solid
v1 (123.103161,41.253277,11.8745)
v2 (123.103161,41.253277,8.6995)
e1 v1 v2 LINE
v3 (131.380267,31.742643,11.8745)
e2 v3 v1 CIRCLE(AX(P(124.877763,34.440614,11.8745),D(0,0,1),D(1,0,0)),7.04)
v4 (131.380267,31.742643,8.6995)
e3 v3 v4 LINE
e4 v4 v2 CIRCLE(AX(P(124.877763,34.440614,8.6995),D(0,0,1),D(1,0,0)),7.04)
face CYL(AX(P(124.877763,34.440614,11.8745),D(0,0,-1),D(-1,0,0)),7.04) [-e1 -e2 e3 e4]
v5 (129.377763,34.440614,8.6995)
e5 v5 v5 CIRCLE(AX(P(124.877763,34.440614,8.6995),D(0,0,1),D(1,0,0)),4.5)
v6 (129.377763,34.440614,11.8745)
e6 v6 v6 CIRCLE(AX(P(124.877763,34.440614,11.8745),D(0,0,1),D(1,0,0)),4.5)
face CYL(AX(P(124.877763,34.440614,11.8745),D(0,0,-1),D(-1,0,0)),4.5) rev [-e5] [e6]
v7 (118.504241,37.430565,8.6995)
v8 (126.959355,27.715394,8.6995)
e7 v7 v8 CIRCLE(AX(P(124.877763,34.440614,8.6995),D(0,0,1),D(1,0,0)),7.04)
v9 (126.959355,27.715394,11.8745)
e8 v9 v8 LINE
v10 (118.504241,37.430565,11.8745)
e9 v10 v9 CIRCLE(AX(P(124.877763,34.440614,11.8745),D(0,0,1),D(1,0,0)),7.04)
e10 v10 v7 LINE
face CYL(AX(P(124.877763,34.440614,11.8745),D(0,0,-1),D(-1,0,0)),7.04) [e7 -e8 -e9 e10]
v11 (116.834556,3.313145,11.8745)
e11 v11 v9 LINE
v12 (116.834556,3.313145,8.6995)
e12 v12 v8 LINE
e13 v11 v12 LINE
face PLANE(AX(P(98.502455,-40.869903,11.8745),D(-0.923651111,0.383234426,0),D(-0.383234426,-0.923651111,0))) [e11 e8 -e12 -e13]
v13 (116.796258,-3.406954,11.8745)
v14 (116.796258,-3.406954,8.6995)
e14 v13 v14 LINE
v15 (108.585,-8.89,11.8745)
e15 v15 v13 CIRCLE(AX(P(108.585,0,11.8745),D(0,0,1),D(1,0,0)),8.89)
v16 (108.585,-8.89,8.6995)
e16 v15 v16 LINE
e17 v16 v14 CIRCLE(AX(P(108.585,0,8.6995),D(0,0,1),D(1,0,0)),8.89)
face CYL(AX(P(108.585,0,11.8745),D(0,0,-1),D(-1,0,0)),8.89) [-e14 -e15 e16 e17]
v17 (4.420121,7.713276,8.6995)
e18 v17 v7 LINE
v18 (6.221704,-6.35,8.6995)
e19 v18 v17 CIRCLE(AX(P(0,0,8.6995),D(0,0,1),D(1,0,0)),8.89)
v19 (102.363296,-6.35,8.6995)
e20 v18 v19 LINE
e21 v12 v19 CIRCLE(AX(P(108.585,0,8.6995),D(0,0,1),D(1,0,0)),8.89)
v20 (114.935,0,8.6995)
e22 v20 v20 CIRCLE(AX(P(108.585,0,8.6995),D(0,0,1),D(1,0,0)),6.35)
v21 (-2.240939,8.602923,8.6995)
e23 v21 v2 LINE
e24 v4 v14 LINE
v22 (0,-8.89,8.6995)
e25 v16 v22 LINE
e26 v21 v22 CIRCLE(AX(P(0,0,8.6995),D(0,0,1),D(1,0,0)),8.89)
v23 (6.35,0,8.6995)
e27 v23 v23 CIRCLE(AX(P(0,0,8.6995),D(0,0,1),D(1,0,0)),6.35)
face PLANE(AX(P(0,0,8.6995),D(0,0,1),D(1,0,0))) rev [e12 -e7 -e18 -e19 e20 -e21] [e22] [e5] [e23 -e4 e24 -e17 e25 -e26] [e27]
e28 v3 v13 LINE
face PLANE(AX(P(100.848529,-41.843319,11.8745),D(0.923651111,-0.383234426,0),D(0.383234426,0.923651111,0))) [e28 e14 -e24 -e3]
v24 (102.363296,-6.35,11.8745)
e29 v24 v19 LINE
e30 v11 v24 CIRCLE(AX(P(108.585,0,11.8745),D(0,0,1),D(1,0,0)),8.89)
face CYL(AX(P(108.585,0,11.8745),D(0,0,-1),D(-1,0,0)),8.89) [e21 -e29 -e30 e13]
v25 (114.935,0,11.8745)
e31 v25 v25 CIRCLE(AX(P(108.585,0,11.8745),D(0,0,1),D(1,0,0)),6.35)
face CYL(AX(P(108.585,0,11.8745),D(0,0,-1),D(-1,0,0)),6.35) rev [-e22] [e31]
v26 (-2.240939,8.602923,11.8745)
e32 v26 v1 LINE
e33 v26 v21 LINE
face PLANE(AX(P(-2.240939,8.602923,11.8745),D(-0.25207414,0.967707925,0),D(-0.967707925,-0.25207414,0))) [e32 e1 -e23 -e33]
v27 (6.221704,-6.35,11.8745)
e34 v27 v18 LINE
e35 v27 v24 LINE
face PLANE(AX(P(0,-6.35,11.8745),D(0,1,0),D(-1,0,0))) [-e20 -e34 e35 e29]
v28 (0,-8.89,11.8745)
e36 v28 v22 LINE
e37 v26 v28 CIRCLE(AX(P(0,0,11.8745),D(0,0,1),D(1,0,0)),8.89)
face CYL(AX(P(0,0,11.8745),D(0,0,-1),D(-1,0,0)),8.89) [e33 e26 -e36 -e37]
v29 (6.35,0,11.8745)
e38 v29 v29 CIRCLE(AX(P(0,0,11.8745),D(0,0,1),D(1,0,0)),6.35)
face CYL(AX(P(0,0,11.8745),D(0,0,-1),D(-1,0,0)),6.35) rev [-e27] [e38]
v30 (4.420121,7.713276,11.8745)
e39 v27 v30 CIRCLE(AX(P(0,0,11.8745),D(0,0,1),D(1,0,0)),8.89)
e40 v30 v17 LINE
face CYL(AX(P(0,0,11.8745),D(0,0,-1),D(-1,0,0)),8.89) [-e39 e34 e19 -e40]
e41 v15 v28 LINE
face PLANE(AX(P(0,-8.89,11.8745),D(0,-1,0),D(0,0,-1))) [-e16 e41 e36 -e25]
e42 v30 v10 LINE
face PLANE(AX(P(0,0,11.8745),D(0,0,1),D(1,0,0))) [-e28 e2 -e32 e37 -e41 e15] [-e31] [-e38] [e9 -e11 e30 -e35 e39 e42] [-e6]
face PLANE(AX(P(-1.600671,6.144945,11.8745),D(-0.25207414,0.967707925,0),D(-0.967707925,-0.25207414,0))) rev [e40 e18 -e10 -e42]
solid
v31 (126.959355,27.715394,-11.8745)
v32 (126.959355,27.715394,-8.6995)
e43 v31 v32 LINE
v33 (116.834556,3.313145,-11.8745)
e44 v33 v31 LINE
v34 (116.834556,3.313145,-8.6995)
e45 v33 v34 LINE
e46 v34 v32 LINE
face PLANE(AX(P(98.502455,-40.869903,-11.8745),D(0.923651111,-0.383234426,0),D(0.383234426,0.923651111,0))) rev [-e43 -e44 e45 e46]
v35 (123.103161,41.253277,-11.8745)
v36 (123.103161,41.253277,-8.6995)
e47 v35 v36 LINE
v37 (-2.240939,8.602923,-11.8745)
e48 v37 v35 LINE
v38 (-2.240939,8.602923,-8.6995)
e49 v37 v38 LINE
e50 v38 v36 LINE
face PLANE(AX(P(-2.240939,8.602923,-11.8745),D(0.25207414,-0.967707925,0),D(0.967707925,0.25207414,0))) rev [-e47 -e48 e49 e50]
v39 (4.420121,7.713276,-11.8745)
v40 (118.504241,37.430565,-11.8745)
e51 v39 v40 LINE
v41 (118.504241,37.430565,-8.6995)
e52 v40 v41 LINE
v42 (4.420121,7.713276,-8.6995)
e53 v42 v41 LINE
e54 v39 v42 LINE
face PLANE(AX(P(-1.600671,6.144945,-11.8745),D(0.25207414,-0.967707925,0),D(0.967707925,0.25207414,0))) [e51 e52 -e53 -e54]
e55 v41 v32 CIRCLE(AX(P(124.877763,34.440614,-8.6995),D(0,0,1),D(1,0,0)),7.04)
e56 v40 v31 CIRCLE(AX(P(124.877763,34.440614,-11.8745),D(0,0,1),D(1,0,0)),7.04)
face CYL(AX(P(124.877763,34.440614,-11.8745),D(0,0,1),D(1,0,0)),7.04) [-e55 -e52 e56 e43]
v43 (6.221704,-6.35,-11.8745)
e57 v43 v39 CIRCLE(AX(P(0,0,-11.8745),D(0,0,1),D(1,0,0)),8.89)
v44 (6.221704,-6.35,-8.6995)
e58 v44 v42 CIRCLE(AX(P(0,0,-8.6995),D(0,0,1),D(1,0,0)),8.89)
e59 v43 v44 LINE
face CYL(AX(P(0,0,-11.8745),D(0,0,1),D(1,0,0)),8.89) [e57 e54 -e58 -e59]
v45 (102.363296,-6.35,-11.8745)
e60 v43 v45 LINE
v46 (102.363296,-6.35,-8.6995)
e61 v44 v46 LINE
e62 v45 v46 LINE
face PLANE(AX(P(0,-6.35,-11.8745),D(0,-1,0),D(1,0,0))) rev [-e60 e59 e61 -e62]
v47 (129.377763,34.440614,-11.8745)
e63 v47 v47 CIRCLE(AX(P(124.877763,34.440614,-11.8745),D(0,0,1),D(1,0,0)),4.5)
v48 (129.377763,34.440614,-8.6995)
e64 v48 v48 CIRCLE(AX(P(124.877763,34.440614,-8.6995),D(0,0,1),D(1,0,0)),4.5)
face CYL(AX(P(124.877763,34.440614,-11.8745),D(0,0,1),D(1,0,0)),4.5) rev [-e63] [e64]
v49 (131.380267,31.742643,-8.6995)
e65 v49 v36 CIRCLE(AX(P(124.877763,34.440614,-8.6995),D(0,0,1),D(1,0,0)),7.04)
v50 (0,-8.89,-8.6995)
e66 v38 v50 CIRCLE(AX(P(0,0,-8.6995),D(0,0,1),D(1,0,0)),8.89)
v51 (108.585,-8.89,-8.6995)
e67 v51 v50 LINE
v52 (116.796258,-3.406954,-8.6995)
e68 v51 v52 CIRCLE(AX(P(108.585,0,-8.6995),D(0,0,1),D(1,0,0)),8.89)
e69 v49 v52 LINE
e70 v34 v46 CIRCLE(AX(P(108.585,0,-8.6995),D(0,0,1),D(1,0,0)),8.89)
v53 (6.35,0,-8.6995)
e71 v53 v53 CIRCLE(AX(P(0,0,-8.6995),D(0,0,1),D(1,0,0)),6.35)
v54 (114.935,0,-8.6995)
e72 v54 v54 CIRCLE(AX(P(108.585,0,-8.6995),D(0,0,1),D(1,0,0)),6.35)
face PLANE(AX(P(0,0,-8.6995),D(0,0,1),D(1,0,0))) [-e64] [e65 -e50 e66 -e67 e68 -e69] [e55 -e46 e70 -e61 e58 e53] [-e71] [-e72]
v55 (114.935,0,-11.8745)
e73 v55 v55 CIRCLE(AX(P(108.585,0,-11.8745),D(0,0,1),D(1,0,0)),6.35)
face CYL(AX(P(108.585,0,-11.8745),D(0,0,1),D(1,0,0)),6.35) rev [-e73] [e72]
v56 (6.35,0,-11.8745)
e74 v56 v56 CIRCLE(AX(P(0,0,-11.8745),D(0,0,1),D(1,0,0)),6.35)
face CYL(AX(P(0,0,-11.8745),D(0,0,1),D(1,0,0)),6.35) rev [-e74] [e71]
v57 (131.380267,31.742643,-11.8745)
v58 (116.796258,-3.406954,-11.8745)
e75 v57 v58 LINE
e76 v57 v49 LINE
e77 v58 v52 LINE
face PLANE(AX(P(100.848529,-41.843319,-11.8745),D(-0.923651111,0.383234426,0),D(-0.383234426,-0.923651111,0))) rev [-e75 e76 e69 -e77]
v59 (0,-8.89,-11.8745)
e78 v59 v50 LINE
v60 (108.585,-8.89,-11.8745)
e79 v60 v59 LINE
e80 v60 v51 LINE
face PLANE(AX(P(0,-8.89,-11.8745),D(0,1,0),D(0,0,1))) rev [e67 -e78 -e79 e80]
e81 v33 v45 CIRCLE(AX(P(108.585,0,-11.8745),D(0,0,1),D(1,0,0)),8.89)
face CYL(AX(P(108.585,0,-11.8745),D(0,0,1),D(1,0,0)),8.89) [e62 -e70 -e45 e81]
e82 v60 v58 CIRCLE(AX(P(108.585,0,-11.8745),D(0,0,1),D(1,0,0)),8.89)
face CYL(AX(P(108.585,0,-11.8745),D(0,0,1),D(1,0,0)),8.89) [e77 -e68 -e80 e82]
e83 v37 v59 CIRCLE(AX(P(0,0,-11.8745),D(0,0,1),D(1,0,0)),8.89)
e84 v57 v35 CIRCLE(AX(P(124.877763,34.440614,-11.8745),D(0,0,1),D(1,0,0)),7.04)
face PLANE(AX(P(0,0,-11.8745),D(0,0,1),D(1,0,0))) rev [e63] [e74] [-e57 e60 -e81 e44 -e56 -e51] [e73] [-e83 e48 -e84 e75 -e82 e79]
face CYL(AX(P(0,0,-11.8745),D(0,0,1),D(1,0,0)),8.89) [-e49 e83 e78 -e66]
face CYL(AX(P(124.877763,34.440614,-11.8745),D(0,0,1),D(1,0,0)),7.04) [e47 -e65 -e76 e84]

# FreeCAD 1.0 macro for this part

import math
import FreeCAD as App
import Part
import Sketcher
Q = App.Units.Quantity

doc = App.newDocument("Part")
body = doc.addObject("PartDesign::Body", "Body")

# Sketch on XY plane
sketch1 = doc.addObject("Sketcher::SketchObject", "Sketch")
body.addObject(sketch1)
sketch1.AttachmentSupport = (doc.XY_Plane, [""])
sketch1.MapMode = "FlatFace"
sketch1.AttachmentOffset = App.Placement(App.Vector(0, 0, 0.3425 * 25.4), App.Rotation())
sketch1.addGeometry(Part.ArcOfCircle(Part.Circle(App.Vector(124.877763, 34.440614, 0), App.Vector(0, 0, 1), 7.04), math.radians(0), math.radians(104.600283)), False)
sketch1.addGeometry(Part.LineSegment(App.Vector(123.103161, 41.253277, 0), App.Vector(-2.240939, 8.602923, 0)), False)
sketch1.addGeometry(Part.ArcOfCircle(Part.Circle(App.Vector(0, 0, 0), App.Vector(0, 0, 1), 8.89), math.radians(104.600283), math.radians(270)), False)
sketch1.addGeometry(Part.LineSegment(App.Vector(0, -8.89, 0), App.Vector(108.585, -8.89, 0)), False)
sketch1.addGeometry(Part.ArcOfCircle(Part.Circle(App.Vector(108.585, 0, 0), App.Vector(0, 0, 1), 8.89), math.radians(-90), math.radians(-22.534175)), False)
sketch1.addGeometry(Part.LineSegment(App.Vector(116.796258, -3.406954, 0), App.Vector(131.380267, 31.742643, 0)), False)
sketch1.addGeometry(Part.ArcOfCircle(Part.Circle(App.Vector(124.877763, 34.440614, 0), App.Vector(0, 0, 1), 7.04), math.radians(-22.534175), math.radians(0)), False)
sketch1.addGeometry(Part.ArcOfCircle(Part.Circle(App.Vector(0, 0, 0), App.Vector(0, 0, 1), 6.35), math.radians(104.600283), math.radians(270)), False)
sketch1.addGeometry(Part.ArcOfCircle(Part.Circle(App.Vector(0, 0, 0), App.Vector(0, 0, 1), 6.35), math.radians(0), math.radians(104.600283)), False)
sketch1.addGeometry(Part.ArcOfCircle(Part.Circle(App.Vector(0, 0, 0), App.Vector(0, 0, 1), 6.35), math.radians(-90), math.radians(0)), False)
sketch1.addGeometry(Part.ArcOfCircle(Part.Circle(App.Vector(108.585, 0, 0), App.Vector(0, 0, 1), 6.35), math.radians(-22.534175), math.radians(0)), False)
sketch1.addGeometry(Part.ArcOfCircle(Part.Circle(App.Vector(108.585, 0, 0), App.Vector(0, 0, 1), 6.35), math.radians(-90), math.radians(-22.534175)), False)
sketch1.addGeometry(Part.ArcOfCircle(Part.Circle(App.Vector(108.585, 0, 0), App.Vector(0, 0, 1), 6.35), math.radians(0), math.radians(270)), False)
sketch1.addGeometry(Part.ArcOfCircle(Part.Circle(App.Vector(124.877763, 34.440614, 0), App.Vector(0, 0, 1), 4.5), math.radians(0), math.radians(104.600283)), False)
sketch1.addGeometry(Part.ArcOfCircle(Part.Circle(App.Vector(124.877763, 34.440614, 0), App.Vector(0, 0, 1), 4.5), math.radians(-22.534175), math.radians(0)), False)
sketch1.addGeometry(Part.ArcOfCircle(Part.Circle(App.Vector(124.877763, 34.440614, 0), App.Vector(0, 0, 1), 4.5), math.radians(104.600283), math.radians(337.465825)), False)
sketch1.addGeometry(Part.LineSegment(App.Vector(4.420121, 7.713276, 0), App.Vector(118.504241, 37.430565, 0)), False)
sketch1.addGeometry(Part.ArcOfCircle(Part.Circle(App.Vector(124.877763, 34.440614, 0), App.Vector(0, 0, 1), 7.04), math.radians(154.867753), math.radians(287.198355)), False)
sketch1.addGeometry(Part.LineSegment(App.Vector(126.959355, 27.715394, 0), App.Vector(116.834556, 3.313145, 0)), False)
sketch1.addGeometry(Part.ArcOfCircle(Part.Circle(App.Vector(108.585, 0, 0), App.Vector(0, 0, 1), 8.89), math.radians(21.881134), math.radians(225.584691)), False)
sketch1.addGeometry(Part.LineSegment(App.Vector(102.363296, -6.35, 0), App.Vector(6.221704, -6.35, 0)), False)
sketch1.addGeometry(Part.ArcOfCircle(Part.Circle(App.Vector(0, 0, 0), App.Vector(0, 0, 1), 8.89), math.radians(-45.584691), math.radians(0)), False)
sketch1.addGeometry(Part.ArcOfCircle(Part.Circle(App.Vector(0, 0, 0), App.Vector(0, 0, 1), 8.89), math.radians(0), math.radians(60.184975)), False)
sketch1.addConstraint(Sketcher.Constraint("Tangent", 0, 2, 1, 1))
sketch1.addConstraint(Sketcher.Constraint("Tangent", 1, 2, 2, 1))
sketch1.addConstraint(Sketcher.Constraint("Tangent", 2, 2, 3, 1))
sketch1.addConstraint(Sketcher.Constraint("Tangent", 3, 2, 4, 1))
sketch1.addConstraint(Sketcher.Constraint("Tangent", 4, 2, 5, 1))
sketch1.addConstraint(Sketcher.Constraint("Tangent", 5, 2, 6, 1))
sketch1.addConstraint(Sketcher.Constraint("Tangent", 6, 2, 0, 1))
sketch1.addConstraint(Sketcher.Constraint("Tangent", 7, 1, 8, 2))
sketch1.addConstraint(Sketcher.Constraint("Tangent", 8, 1, 9, 2))
sketch1.addConstraint(Sketcher.Constraint("Tangent", 9, 1, 7, 2))
sketch1.addConstraint(Sketcher.Constraint("Tangent", 10, 1, 11, 2))
sketch1.addConstraint(Sketcher.Constraint("Tangent", 11, 1, 12, 2))
sketch1.addConstraint(Sketcher.Constraint("Tangent", 12, 1, 10, 2))
sketch1.addConstraint(Sketcher.Constraint("Tangent", 13, 1, 14, 2))
sketch1.addConstraint(Sketcher.Constraint("Tangent", 14, 1, 15, 2))
sketch1.addConstraint(Sketcher.Constraint("Tangent", 15, 1, 13, 2))
sketch1.addConstraint(Sketcher.Constraint("Coincident", 16, 2, 17, 1))
sketch1.addConstraint(Sketcher.Constraint("Coincident", 17, 2, 18, 1))
sketch1.addConstraint(Sketcher.Constraint("Coincident", 18, 2, 19, 1))
sketch1.addConstraint(Sketcher.Constraint("Coincident", 19, 2, 20, 1))
sketch1.addConstraint(Sketcher.Constraint("Coincident", 20, 2, 21, 1))
sketch1.addConstraint(Sketcher.Constraint("Tangent", 21, 2, 22, 1))
sketch1.addConstraint(Sketcher.Constraint("Coincident", 22, 2, 16, 1))
sketch1.addConstraint(Sketcher.Constraint("Horizontal", 3))
sketch1.addConstraint(Sketcher.Constraint("Horizontal", 20))
sketch1.addConstraint(Sketcher.Constraint("Coincident", 2, 3, -1, 1))
sketch1.addConstraint(Sketcher.Constraint("Coincident", 7, 3, -1, 1))
sketch1.addConstraint(Sketcher.Constraint("Coincident", 21, 3, -1, 1))
sketch1.addConstraint(Sketcher.Constraint("Coincident", 10, 3, 4, 3))
sketch1.addConstraint(Sketcher.Constraint("Coincident", 13, 3, 0, 3))
sketch1.addConstraint(Sketcher.Constraint("Coincident", 17, 3, 0, 3))
sketch1.addConstraint(Sketcher.Constraint("Coincident", 19, 3, 4, 3))
sketch1.addConstraint(Sketcher.Constraint("Equal", 2, 4))
sketch1.addConstraint(Sketcher.Constraint("Equal", 0, 6))
sketch1.addConstraint(Sketcher.Constraint("Equal", 9, 10))
sketch1.addConstraint(Sketcher.Constraint("Equal", 6, 17))
sketch1.addConstraint(Sketcher.Constraint("Equal", 4, 19))
sketch1.addConstraint(Sketcher.Constraint("Equal", 19, 21))
sketch1.addConstraint(Sketcher.Constraint("Equal", 21, 22))
sketch1.addConstraint(Sketcher.Constraint("PointOnObject", 8, 1, -1))
sketch1.addConstraint(Sketcher.Constraint("PointOnObject", 9, 1, -2))
sketch1.addConstraint(Sketcher.Constraint("PointOnObject", 12, 1, -1))
sketch1.addConstraint(Sketcher.Constraint("PointOnObject", 21, 2, -1))
sketch1.addConstraint(Sketcher.Constraint("Parallel", 1, 16))
sketch1.addConstraint(Sketcher.Constraint("Parallel", 5, 18))
sketch1.addConstraint(Sketcher.Constraint("Horizontal", 17, 3, 6, 2))
sketch1.addConstraint(Sketcher.Constraint("Horizontal", 6, 2, 13, 1))
sketch1.addConstraint(Sketcher.Constraint("Horizontal", 11, 1, 19, 2))
sketch1.addConstraint(Sketcher.Constraint("Vertical", 3, 2, 11, 1))
sketch1.addConstraint(Sketcher.Constraint("Radius", 2, Q("0.35 in")))
sketch1.addConstraint(Sketcher.Constraint("Radius", 7, Q("0.25 in")))
sketch1.addConstraint(Sketcher.Constraint("DistanceX", 13, 1, 6, 2, Q("0.1 in")))
sketch1.addConstraint(Sketcher.Constraint("DistanceX", 3, 1, 3, 2, Q("4.275 in")))
sketch1.addConstraint(Sketcher.Constraint("Radius", 0, Q("7.04 mm")))
sketch1.addConstraint(Sketcher.Constraint("DistanceY", -1, 1, 15, 1, Q("38.795299 mm")))
sketch1.addConstraint(Sketcher.Constraint("DistanceX", 0, 2, 14, 3, Q("1.774602 mm")))
sketch1.addConstraint(Sketcher.Constraint("DistanceY", 4, 2, 18, 2, Q("6.720099 mm")))
sketch1.addConstraint(Sketcher.Constraint("Distance", 1, Q("129.526789 mm")))
sketch1.addConstraint(Sketcher.Constraint("DistanceX", 7, 1, -1, 1, Q("1.600671 mm")))
sketch1.addConstraint(Sketcher.Constraint("DistanceY", 10, 1, -1, 1, Q("2.433539 mm")))
sketch1.addConstraint(Sketcher.Constraint("DistanceY", -1, 1, 14, 1, Q("32.716059 mm")))
sketch1.addConstraint(Sketcher.Constraint("DistanceX", -1, 1, 16, 2, Q("118.504241 mm")))
pad1 = doc.addObject("PartDesign::Pad", "Pad")
body.addObject(pad1)
pad1.Profile = sketch1
pad1.Length = Q("0.125 in")
body2 = doc.addObject("PartDesign::Body", "Body001")

# Sketch on XY plane
sketch2 = doc.addObject("Sketcher::SketchObject", "Sketch001")
body2.addObject(sketch2)
sketch2.AttachmentSupport = (doc.getObject("XY_Plane001"), [""])
sketch2.MapMode = "FlatFace"
sketch2.AttachmentOffset = App.Placement(App.Vector(0, 0, -0.3425 * 25.4), App.Rotation())
sketch2.addGeometry(Part.LineSegment(App.Vector(116.796258, -3.406954, 0), App.Vector(131.380267, 31.742643, 0)), False)
sketch2.addGeometry(Part.ArcOfCircle(Part.Circle(App.Vector(124.877763, 34.440614, 0), App.Vector(0, 0, 1), 7.04), math.radians(-22.534175), math.radians(0)), False)
sketch2.addGeometry(Part.ArcOfCircle(Part.Circle(App.Vector(124.877763, 34.440614, 0), App.Vector(0, 0, 1), 7.04), math.radians(0), math.radians(104.600283)), False)
sketch2.addGeometry(Part.LineSegment(App.Vector(123.103161, 41.253277, 0), App.Vector(-2.240939, 8.602923, 0)), False)
sketch2.addGeometry(Part.ArcOfCircle(Part.Circle(App.Vector(0, 0, 0), App.Vector(0, 0, 1), 8.89), math.radians(104.600283), math.radians(270)), False)
sketch2.addGeometry(Part.LineSegment(App.Vector(0, -8.89, 0), App.Vector(108.585, -8.89, 0)), False)
sketch2.addGeometry(Part.ArcOfCircle(Part.Circle(App.Vector(108.585, 0, 0), App.Vector(0, 0, 1), 8.89), math.radians(-90), math.radians(-22.534175)), False)
sketch2.addGeometry(Part.ArcOfCircle(Part.Circle(App.Vector(0, 0, 0), App.Vector(0, 0, 1), 6.35), math.radians(104.600283), math.radians(270)), False)
sketch2.addGeometry(Part.ArcOfCircle(Part.Circle(App.Vector(0, 0, 0), App.Vector(0, 0, 1), 6.35), math.radians(0), math.radians(104.600283)), False)
sketch2.addGeometry(Part.ArcOfCircle(Part.Circle(App.Vector(0, 0, 0), App.Vector(0, 0, 1), 6.35), math.radians(-90), math.radians(0)), False)
sketch2.addGeometry(Part.ArcOfCircle(Part.Circle(App.Vector(108.585, 0, 0), App.Vector(0, 0, 1), 6.35), math.radians(-90), math.radians(-22.534175)), False)
sketch2.addGeometry(Part.ArcOfCircle(Part.Circle(App.Vector(108.585, 0, 0), App.Vector(0, 0, 1), 6.35), math.radians(0), math.radians(270)), False)
sketch2.addGeometry(Part.ArcOfCircle(Part.Circle(App.Vector(108.585, 0, 0), App.Vector(0, 0, 1), 6.35), math.radians(-22.534175), math.radians(0)), False)
sketch2.addGeometry(Part.ArcOfCircle(Part.Circle(App.Vector(108.585, 0, 0), App.Vector(0, 0, 1), 8.89), math.radians(21.881134), math.radians(225.584691)), False)
sketch2.addGeometry(Part.LineSegment(App.Vector(102.363296, -6.35, 0), App.Vector(6.221704, -6.35, 0)), False)
sketch2.addGeometry(Part.ArcOfCircle(Part.Circle(App.Vector(0, 0, 0), App.Vector(0, 0, 1), 8.89), math.radians(-45.584691), math.radians(0)), False)
sketch2.addGeometry(Part.ArcOfCircle(Part.Circle(App.Vector(0, 0, 0), App.Vector(0, 0, 1), 8.89), math.radians(0), math.radians(60.184975)), False)
sketch2.addGeometry(Part.LineSegment(App.Vector(4.420121, 7.713276, 0), App.Vector(118.504241, 37.430565, 0)), False)
sketch2.addGeometry(Part.ArcOfCircle(Part.Circle(App.Vector(124.877763, 34.440614, 0), App.Vector(0, 0, 1), 7.04), math.radians(154.867753), math.radians(287.198355)), False)
sketch2.addGeometry(Part.LineSegment(App.Vector(126.959355, 27.715394, 0), App.Vector(116.834556, 3.313145, 0)), False)
sketch2.addGeometry(Part.ArcOfCircle(Part.Circle(App.Vector(124.877763, 34.440614, 0), App.Vector(0, 0, 1), 4.5), math.radians(-22.534175), math.radians(0)), False)
sketch2.addGeometry(Part.ArcOfCircle(Part.Circle(App.Vector(124.877763, 34.440614, 0), App.Vector(0, 0, 1), 4.5), math.radians(104.600283), math.radians(337.465825)), False)
sketch2.addGeometry(Part.ArcOfCircle(Part.Circle(App.Vector(124.877763, 34.440614, 0), App.Vector(0, 0, 1), 4.5), math.radians(0), math.radians(104.600283)), False)
sketch2.addConstraint(Sketcher.Constraint("Tangent", 0, 2, 1, 1))
sketch2.addConstraint(Sketcher.Constraint("Tangent", 1, 2, 2, 1))
sketch2.addConstraint(Sketcher.Constraint("Tangent", 2, 2, 3, 1))
sketch2.addConstraint(Sketcher.Constraint("Tangent", 3, 2, 4, 1))
sketch2.addConstraint(Sketcher.Constraint("Tangent", 4, 2, 5, 1))
sketch2.addConstraint(Sketcher.Constraint("Tangent", 5, 2, 6, 1))
sketch2.addConstraint(Sketcher.Constraint("Tangent", 6, 2, 0, 1))
sketch2.addConstraint(Sketcher.Constraint("Tangent", 7, 1, 8, 2))
sketch2.addConstraint(Sketcher.Constraint("Tangent", 8, 1, 9, 2))
sketch2.addConstraint(Sketcher.Constraint("Tangent", 9, 1, 7, 2))
sketch2.addConstraint(Sketcher.Constraint("Tangent", 10, 1, 11, 2))
sketch2.addConstraint(Sketcher.Constraint("Tangent", 11, 1, 12, 2))
sketch2.addConstraint(Sketcher.Constraint("Tangent", 12, 1, 10, 2))
sketch2.addConstraint(Sketcher.Constraint("Coincident", 13, 2, 14, 1))
sketch2.addConstraint(Sketcher.Constraint("Coincident", 14, 2, 15, 1))
sketch2.addConstraint(Sketcher.Constraint("Tangent", 15, 2, 16, 1))
sketch2.addConstraint(Sketcher.Constraint("Coincident", 16, 2, 17, 1))
sketch2.addConstraint(Sketcher.Constraint("Coincident", 17, 2, 18, 1))
sketch2.addConstraint(Sketcher.Constraint("Coincident", 18, 2, 19, 1))
sketch2.addConstraint(Sketcher.Constraint("Coincident", 19, 2, 13, 1))
sketch2.addConstraint(Sketcher.Constraint("Tangent", 20, 1, 21, 2))
sketch2.addConstraint(Sketcher.Constraint("Tangent", 21, 1, 22, 2))
sketch2.addConstraint(Sketcher.Constraint("Tangent", 22, 1, 20, 2))
sketch2.addConstraint(Sketcher.Constraint("Horizontal", 5))
sketch2.addConstraint(Sketcher.Constraint("Horizontal", 14))
sketch2.addConstraint(Sketcher.Constraint("Coincident", 4, 3, -1, 1))
sketch2.addConstraint(Sketcher.Constraint("Coincident", 7, 3, -1, 1))
sketch2.addConstraint(Sketcher.Constraint("Coincident", 15, 3, -1, 1))
sketch2.addConstraint(Sketcher.Constraint("Coincident", 10, 3, 6, 3))
sketch2.addConstraint(Sketcher.Constraint("Coincident", 13, 3, 6, 3))
sketch2.addConstraint(Sketcher.Constraint("Coincident", 18, 3, 1, 3))
sketch2.addConstraint(Sketcher.Constraint("Coincident", 20, 3, 1, 3))
sketch2.addConstraint(Sketcher.Constraint("Equal", 1, 2))
sketch2.addConstraint(Sketcher.Constraint("Equal", 4, 6))
sketch2.addConstraint(Sketcher.Constraint("Equal", 9, 10))
sketch2.addConstraint(Sketcher.Constraint("Equal", 6, 13))
sketch2.addConstraint(Sketcher.Constraint("Equal", 13, 15))
sketch2.addConstraint(Sketcher.Constraint("Equal", 15, 16))
sketch2.addConstraint(Sketcher.Constraint("Equal", 2, 18))
sketch2.addConstraint(Sketcher.Constraint("PointOnObject", 8, 1, -1))
sketch2.addConstraint(Sketcher.Constraint("PointOnObject", 9, 1, -2))
sketch2.addConstraint(Sketcher.Constraint("PointOnObject", 11, 1, -1))
sketch2.addConstraint(Sketcher.Constraint("PointOnObject", 15, 2, -1))
sketch2.addConstraint(Sketcher.Constraint("Parallel", 3, 17))
sketch2.addConstraint(Sketcher.Constraint("Parallel", 0, 19))
sketch2.addConstraint(Sketcher.Constraint("Horizontal", 22, 3, 1, 2))
sketch2.addConstraint(Sketcher.Constraint("Horizontal", 10, 1, 13, 2))
sketch2.addConstraint(Sketcher.Constraint("Horizontal", 1, 2, 22, 1))
sketch2.addConstraint(Sketcher.Constraint("Vertical", 5, 2, 10, 1))
sketch2.addConstraint(Sketcher.Constraint("Radius", 4, Q("0.35 in")))
sketch2.addConstraint(Sketcher.Constraint("Radius", 7, Q("0.25 in")))
sketch2.addConstraint(Sketcher.Constraint("DistanceX", 22, 1, 1, 2, Q("0.1 in")))
sketch2.addConstraint(Sketcher.Constraint("DistanceX", 5, 1, 5, 2, Q("4.275 in")))
sketch2.addConstraint(Sketcher.Constraint("Radius", 1, Q("7.04 mm")))
sketch2.addConstraint(Sketcher.Constraint("DistanceY", -1, 1, 21, 1, Q("38.795299 mm")))
sketch2.addConstraint(Sketcher.Constraint("DistanceX", 2, 2, 20, 3, Q("1.774602 mm")))
sketch2.addConstraint(Sketcher.Constraint("DistanceY", 6, 2, 19, 2, Q("6.720099 mm")))
sketch2.addConstraint(Sketcher.Constraint("Distance", 0, Q("38.055059 mm")))
sketch2.addConstraint(Sketcher.Constraint("DistanceX", 7, 1, -1, 1, Q("1.600671 mm")))
sketch2.addConstraint(Sketcher.Constraint("DistanceY", 12, 1, -1, 1, Q("2.433539 mm")))
sketch2.addConstraint(Sketcher.Constraint("DistanceX", -1, 1, 16, 2, Q("4.420121 mm")))
sketch2.addConstraint(Sketcher.Constraint("DistanceY", -1, 1, 20, 1, Q("32.716059 mm")))
pad2 = doc.addObject("PartDesign::Pad", "Pad001")
body2.addObject(pad2)
pad2.Profile = sketch2
pad2.Length = Q("0.125 in")
pad2.Reversed = True

doc.recompute()
